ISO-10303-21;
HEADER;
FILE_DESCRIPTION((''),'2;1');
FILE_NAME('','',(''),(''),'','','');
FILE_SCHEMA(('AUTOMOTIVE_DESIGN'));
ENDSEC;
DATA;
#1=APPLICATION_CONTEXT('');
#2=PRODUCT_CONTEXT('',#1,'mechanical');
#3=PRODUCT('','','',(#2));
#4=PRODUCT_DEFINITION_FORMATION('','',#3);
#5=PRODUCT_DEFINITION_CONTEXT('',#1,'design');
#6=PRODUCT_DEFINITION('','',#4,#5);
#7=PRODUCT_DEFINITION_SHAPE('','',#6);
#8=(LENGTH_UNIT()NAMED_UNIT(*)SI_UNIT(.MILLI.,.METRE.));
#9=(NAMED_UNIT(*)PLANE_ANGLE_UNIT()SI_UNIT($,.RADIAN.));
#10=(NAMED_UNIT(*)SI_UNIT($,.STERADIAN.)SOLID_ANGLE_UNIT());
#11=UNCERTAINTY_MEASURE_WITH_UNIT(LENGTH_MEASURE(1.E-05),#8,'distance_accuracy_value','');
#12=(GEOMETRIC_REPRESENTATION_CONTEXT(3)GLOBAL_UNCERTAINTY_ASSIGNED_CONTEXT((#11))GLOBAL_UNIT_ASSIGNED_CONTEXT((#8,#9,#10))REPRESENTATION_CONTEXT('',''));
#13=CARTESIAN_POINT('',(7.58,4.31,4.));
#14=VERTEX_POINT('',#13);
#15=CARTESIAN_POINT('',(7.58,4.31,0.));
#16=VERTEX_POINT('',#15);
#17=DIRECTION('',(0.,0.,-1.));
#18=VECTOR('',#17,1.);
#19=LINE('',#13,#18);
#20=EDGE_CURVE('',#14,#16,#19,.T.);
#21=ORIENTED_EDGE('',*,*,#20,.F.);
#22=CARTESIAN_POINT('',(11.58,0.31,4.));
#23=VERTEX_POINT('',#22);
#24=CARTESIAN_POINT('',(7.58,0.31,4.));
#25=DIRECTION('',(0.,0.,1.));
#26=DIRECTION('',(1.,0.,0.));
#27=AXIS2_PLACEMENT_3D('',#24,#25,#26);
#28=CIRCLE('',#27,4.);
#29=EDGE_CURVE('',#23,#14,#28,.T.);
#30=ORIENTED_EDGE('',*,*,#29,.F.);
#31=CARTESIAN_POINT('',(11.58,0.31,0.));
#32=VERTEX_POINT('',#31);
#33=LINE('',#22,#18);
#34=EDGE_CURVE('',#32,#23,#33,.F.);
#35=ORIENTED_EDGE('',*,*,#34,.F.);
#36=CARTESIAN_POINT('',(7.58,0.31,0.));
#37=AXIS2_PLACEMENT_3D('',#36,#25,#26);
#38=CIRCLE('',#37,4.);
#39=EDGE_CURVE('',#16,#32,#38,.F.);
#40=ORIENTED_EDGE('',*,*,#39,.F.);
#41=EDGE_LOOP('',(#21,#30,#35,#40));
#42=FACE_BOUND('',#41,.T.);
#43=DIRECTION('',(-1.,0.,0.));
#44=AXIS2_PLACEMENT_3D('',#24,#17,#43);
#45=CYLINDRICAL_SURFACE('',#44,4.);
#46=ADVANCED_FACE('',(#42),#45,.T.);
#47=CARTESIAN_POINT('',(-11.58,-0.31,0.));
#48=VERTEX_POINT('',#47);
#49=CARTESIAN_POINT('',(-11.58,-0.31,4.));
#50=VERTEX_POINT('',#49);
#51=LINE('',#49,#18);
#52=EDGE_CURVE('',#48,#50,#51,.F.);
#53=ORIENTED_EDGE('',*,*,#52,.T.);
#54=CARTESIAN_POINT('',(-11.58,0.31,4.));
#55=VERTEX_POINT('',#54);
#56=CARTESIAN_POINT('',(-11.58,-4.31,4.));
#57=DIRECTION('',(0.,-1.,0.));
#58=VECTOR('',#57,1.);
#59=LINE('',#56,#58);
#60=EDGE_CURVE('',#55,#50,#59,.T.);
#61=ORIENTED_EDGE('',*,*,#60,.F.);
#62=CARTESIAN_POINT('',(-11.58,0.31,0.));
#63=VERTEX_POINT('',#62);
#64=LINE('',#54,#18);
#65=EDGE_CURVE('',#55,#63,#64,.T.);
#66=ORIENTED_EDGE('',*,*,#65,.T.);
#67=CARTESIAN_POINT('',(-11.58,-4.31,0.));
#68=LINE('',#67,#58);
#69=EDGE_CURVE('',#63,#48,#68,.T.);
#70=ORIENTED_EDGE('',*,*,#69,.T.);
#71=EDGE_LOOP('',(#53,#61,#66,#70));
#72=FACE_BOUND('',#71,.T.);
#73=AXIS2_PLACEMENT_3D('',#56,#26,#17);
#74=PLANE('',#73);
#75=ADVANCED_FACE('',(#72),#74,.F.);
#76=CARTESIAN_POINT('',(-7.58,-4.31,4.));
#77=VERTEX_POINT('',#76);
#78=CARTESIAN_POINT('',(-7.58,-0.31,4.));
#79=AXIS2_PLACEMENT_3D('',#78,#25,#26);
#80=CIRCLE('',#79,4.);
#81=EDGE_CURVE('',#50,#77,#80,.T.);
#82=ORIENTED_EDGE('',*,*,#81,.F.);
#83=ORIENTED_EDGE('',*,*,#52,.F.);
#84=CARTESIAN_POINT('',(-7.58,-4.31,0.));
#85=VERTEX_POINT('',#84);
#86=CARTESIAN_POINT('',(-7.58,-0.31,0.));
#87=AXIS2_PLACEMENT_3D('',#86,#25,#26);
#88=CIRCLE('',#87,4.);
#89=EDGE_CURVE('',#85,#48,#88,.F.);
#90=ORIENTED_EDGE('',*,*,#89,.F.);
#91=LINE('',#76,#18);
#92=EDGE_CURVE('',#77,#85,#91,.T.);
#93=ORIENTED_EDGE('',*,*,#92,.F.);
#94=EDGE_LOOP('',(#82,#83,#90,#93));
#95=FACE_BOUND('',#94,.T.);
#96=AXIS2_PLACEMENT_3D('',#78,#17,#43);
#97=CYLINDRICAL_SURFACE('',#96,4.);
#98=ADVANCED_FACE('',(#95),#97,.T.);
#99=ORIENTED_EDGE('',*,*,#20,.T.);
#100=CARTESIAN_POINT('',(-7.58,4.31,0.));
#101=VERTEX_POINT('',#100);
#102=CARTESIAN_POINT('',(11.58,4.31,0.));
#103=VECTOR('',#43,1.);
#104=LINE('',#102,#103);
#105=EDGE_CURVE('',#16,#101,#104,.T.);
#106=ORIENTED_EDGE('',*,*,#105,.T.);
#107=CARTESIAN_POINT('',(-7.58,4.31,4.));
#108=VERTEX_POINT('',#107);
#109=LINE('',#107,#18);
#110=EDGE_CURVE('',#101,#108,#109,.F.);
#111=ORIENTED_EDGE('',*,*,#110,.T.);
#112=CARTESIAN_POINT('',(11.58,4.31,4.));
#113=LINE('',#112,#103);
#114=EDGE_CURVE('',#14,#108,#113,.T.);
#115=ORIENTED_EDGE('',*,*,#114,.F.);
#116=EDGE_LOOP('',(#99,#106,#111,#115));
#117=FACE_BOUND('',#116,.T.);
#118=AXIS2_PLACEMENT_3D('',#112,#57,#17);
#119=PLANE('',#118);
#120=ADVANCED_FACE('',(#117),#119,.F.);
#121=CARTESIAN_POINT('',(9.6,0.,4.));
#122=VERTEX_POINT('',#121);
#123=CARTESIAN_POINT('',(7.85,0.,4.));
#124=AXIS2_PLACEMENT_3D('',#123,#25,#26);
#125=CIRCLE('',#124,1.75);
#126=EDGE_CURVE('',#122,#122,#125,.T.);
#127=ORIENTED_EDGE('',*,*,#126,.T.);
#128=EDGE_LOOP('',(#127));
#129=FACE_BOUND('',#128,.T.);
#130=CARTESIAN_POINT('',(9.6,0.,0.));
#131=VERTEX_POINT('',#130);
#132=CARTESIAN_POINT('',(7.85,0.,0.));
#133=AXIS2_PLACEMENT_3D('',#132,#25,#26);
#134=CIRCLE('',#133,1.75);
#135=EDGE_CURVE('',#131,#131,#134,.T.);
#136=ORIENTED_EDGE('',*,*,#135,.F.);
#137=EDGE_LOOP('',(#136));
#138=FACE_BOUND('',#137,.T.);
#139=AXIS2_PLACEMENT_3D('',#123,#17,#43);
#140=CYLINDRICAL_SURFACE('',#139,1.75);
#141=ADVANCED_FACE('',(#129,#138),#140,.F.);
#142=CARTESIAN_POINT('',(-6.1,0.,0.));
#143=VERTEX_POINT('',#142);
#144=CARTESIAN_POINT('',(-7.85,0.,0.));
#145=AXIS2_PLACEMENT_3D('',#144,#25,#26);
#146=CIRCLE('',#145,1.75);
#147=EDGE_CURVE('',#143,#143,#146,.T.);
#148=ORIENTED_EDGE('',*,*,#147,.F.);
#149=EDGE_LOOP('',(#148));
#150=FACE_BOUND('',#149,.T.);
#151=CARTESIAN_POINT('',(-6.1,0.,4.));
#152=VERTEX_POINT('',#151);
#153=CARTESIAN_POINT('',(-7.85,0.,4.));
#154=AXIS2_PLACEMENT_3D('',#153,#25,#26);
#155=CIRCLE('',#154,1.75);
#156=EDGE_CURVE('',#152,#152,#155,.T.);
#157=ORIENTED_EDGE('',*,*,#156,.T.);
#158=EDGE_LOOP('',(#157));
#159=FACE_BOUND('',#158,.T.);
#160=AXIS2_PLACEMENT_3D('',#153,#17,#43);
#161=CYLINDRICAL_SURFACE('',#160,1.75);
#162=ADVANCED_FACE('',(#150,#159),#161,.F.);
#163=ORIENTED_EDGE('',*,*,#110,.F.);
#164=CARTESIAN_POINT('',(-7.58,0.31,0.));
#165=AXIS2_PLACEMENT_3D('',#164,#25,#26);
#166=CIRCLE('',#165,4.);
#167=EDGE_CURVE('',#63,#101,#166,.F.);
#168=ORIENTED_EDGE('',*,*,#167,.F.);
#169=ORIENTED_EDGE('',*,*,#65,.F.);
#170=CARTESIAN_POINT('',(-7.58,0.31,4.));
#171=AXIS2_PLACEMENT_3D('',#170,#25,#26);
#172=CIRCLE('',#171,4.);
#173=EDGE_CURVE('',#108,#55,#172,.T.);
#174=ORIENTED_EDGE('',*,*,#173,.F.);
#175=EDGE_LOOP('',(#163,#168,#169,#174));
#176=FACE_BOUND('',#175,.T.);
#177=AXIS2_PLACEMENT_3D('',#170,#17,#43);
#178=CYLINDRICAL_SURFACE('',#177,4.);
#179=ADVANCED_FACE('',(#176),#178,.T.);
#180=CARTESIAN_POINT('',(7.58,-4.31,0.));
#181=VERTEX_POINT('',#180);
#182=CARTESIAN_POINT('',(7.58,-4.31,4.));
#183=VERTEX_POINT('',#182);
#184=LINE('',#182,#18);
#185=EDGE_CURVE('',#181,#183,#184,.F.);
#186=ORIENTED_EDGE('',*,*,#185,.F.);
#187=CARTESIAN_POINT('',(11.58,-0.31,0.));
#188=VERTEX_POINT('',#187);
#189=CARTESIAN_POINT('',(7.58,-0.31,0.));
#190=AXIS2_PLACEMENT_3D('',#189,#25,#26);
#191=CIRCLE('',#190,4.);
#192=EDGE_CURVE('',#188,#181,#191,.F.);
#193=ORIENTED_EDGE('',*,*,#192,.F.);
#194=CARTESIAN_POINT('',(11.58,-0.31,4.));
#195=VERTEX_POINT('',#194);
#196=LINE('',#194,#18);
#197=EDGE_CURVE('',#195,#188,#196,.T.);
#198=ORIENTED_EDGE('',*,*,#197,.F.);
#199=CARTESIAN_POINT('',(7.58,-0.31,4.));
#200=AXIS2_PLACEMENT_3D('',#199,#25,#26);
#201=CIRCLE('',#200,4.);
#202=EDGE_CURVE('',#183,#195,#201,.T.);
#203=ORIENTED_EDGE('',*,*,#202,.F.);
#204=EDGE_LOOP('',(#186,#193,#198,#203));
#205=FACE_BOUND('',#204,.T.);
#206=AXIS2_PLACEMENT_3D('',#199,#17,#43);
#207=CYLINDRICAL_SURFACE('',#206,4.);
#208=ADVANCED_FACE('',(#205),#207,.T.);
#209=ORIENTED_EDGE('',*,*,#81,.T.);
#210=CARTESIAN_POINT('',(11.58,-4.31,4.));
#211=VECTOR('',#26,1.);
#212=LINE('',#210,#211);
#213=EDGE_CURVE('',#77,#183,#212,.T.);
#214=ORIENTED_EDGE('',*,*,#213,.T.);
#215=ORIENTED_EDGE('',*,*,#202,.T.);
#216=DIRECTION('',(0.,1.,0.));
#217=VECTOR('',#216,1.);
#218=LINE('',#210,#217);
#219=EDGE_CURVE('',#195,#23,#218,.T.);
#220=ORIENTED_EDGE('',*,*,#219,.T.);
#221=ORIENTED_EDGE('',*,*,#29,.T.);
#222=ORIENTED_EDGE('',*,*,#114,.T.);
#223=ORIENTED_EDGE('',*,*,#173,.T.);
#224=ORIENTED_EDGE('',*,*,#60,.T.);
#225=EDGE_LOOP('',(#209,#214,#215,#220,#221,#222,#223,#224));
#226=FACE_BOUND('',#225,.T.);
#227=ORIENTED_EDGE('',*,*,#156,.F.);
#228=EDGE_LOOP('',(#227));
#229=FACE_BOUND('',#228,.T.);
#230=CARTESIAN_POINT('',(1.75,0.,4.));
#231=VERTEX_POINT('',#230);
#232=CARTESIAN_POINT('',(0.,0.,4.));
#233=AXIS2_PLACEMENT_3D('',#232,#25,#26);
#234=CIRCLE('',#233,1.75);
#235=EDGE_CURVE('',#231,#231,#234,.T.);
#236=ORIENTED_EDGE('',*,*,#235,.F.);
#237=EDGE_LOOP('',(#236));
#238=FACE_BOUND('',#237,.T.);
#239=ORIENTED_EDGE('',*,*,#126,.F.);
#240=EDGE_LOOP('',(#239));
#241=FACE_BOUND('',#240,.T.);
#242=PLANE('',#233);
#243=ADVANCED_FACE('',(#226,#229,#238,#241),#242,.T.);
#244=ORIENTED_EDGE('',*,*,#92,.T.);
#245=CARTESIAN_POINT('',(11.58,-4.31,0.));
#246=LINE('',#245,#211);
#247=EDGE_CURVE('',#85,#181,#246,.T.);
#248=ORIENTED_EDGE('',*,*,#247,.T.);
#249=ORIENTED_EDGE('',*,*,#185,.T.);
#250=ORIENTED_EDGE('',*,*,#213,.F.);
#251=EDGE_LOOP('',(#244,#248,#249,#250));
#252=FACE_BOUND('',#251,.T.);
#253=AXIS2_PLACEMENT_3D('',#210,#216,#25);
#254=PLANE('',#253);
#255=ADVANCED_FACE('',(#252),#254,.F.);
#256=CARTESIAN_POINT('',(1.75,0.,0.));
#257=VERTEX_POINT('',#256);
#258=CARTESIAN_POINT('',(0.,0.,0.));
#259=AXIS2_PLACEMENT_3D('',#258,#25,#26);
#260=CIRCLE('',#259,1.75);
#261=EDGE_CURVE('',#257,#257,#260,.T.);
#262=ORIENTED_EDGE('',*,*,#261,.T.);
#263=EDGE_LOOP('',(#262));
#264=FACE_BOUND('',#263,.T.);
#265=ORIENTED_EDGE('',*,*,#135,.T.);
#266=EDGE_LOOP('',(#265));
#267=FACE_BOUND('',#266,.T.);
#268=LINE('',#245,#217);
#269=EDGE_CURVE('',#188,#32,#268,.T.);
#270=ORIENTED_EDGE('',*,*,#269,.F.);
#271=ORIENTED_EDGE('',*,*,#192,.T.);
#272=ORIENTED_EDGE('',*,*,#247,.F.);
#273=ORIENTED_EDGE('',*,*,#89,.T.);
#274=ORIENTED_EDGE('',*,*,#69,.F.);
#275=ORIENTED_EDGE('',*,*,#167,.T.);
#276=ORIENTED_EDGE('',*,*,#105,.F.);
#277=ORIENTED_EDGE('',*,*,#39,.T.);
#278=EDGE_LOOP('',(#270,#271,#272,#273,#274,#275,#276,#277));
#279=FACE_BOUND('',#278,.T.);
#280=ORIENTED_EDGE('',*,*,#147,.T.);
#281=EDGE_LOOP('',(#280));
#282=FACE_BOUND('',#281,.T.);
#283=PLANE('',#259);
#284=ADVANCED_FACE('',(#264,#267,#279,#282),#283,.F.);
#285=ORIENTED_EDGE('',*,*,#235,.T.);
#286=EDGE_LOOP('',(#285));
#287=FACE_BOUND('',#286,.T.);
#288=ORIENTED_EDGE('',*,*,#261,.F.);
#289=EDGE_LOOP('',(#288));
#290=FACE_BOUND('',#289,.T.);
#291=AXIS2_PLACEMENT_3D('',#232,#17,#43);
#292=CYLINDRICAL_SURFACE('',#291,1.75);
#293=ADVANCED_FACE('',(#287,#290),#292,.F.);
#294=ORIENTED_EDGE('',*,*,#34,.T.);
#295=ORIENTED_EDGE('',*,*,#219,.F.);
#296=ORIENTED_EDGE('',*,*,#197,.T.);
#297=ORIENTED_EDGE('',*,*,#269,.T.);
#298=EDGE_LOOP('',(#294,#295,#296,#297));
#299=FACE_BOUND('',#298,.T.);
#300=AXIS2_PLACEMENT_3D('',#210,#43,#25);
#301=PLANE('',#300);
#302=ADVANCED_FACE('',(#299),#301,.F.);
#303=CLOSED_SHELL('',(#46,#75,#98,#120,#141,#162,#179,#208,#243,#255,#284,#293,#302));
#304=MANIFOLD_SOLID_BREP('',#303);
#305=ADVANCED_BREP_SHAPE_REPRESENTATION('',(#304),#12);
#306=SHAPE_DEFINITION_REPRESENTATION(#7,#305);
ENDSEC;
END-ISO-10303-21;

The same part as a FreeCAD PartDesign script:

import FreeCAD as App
import Part
import Sketcher
Q = App.Units.Quantity


def edges_at(feature, points):
    """Names of the edges that pass closest to the given points."""
    edges = feature.Shape.Edges
    near = lambda p: min(range(len(edges)), key=lambda i: edges[i].distToShape(Part.Vertex(*p))[0])
    return sorted({f"Edge{near(p) + 1}" for p in points})

doc = App.newDocument("Part")
body = doc.addObject("PartDesign::Body", "Body")

# Sketch on XY plane
sketch1 = doc.addObject("Sketcher::SketchObject", "Sketch")
body.addObject(sketch1)
sketch1.AttachmentSupport = (doc.XY_Plane, [""])
sketch1.MapMode = "FlatFace"
sketch1.addGeometry(Part.LineSegment(App.Vector(-11.58, 4.31, 0), App.Vector(-11.58, -4.31, 0)), False)
sketch1.addGeometry(Part.LineSegment(App.Vector(-11.58, -4.31, 0), App.Vector(11.58, -4.31, 0)), False)
sketch1.addGeometry(Part.LineSegment(App.Vector(11.58, -4.31, 0), App.Vector(11.58, 4.31, 0)), False)
sketch1.addGeometry(Part.LineSegment(App.Vector(11.58, 4.31, 0), App.Vector(-11.58, 4.31, 0)), False)
sketch1.addGeometry(Part.Circle(App.Vector(-7.85, 0, 0), App.Vector(0, 0, 1), 1.75), False)
sketch1.addGeometry(Part.Circle(App.Vector(0, 0, 0), App.Vector(0, 0, 1), 1.75), False)
sketch1.addGeometry(Part.Circle(App.Vector(7.85, 0, 0), App.Vector(0, 0, 1), 1.75), False)
sketch1.addConstraint(Sketcher.Constraint("Coincident", 0, 2, 1, 1))
sketch1.addConstraint(Sketcher.Constraint("Coincident", 1, 2, 2, 1))
sketch1.addConstraint(Sketcher.Constraint("Coincident", 2, 2, 3, 1))
sketch1.addConstraint(Sketcher.Constraint("Coincident", 3, 2, 0, 1))
sketch1.addConstraint(Sketcher.Constraint("Vertical", 0))
sketch1.addConstraint(Sketcher.Constraint("Horizontal", 1))
sketch1.addConstraint(Sketcher.Constraint("Vertical", 2))
sketch1.addConstraint(Sketcher.Constraint("Horizontal", 3))
sketch1.addConstraint(Sketcher.Constraint("Coincident", 5, 3, -1, 1))
sketch1.addConstraint(Sketcher.Constraint("Equal", 4, 5))
sketch1.addConstraint(Sketcher.Constraint("Equal", 5, 6))
sketch1.addConstraint(Sketcher.Constraint("Symmetric", 4, 3, 6, 3, -1, 1))
sketch1.addConstraint(Sketcher.Constraint("Symmetric", 0, 2, 2, 2, -1, 1))
sketch1.addConstraint(Sketcher.Constraint("PointOnObject", 4, 3, -1))
sketch1.addConstraint(Sketcher.Constraint("Diameter", 4, Q("3.5 mm")))
sketch1.addConstraint(Sketcher.Constraint("DistanceX", 1, 1, 1, 2, Q("23.16 mm")))
sketch1.addConstraint(Sketcher.Constraint("DistanceY", 0, 2, 0, 1, Q("8.62 mm")))
sketch1.addConstraint(Sketcher.Constraint("DistanceX", 4, 3, 6, 3, Q("15.7 mm")))
pad1 = doc.addObject("PartDesign::Pad", "Pad")
body.addObject(pad1)
pad1.Profile = sketch1
pad1.Length = 4
doc.recompute()

fillet = doc.addObject("PartDesign::Fillet", "Fillet")
body.addObject(fillet)
fillet.Base = (pad1, edges_at(pad1, [
    (11.58, -4.31, 2),
    (-11.58, -4.31, 2),
    (-11.58, 4.31, 2),
    (11.58, 4.31, 2),
]))
fillet.Radius = 4

doc.recompute()
